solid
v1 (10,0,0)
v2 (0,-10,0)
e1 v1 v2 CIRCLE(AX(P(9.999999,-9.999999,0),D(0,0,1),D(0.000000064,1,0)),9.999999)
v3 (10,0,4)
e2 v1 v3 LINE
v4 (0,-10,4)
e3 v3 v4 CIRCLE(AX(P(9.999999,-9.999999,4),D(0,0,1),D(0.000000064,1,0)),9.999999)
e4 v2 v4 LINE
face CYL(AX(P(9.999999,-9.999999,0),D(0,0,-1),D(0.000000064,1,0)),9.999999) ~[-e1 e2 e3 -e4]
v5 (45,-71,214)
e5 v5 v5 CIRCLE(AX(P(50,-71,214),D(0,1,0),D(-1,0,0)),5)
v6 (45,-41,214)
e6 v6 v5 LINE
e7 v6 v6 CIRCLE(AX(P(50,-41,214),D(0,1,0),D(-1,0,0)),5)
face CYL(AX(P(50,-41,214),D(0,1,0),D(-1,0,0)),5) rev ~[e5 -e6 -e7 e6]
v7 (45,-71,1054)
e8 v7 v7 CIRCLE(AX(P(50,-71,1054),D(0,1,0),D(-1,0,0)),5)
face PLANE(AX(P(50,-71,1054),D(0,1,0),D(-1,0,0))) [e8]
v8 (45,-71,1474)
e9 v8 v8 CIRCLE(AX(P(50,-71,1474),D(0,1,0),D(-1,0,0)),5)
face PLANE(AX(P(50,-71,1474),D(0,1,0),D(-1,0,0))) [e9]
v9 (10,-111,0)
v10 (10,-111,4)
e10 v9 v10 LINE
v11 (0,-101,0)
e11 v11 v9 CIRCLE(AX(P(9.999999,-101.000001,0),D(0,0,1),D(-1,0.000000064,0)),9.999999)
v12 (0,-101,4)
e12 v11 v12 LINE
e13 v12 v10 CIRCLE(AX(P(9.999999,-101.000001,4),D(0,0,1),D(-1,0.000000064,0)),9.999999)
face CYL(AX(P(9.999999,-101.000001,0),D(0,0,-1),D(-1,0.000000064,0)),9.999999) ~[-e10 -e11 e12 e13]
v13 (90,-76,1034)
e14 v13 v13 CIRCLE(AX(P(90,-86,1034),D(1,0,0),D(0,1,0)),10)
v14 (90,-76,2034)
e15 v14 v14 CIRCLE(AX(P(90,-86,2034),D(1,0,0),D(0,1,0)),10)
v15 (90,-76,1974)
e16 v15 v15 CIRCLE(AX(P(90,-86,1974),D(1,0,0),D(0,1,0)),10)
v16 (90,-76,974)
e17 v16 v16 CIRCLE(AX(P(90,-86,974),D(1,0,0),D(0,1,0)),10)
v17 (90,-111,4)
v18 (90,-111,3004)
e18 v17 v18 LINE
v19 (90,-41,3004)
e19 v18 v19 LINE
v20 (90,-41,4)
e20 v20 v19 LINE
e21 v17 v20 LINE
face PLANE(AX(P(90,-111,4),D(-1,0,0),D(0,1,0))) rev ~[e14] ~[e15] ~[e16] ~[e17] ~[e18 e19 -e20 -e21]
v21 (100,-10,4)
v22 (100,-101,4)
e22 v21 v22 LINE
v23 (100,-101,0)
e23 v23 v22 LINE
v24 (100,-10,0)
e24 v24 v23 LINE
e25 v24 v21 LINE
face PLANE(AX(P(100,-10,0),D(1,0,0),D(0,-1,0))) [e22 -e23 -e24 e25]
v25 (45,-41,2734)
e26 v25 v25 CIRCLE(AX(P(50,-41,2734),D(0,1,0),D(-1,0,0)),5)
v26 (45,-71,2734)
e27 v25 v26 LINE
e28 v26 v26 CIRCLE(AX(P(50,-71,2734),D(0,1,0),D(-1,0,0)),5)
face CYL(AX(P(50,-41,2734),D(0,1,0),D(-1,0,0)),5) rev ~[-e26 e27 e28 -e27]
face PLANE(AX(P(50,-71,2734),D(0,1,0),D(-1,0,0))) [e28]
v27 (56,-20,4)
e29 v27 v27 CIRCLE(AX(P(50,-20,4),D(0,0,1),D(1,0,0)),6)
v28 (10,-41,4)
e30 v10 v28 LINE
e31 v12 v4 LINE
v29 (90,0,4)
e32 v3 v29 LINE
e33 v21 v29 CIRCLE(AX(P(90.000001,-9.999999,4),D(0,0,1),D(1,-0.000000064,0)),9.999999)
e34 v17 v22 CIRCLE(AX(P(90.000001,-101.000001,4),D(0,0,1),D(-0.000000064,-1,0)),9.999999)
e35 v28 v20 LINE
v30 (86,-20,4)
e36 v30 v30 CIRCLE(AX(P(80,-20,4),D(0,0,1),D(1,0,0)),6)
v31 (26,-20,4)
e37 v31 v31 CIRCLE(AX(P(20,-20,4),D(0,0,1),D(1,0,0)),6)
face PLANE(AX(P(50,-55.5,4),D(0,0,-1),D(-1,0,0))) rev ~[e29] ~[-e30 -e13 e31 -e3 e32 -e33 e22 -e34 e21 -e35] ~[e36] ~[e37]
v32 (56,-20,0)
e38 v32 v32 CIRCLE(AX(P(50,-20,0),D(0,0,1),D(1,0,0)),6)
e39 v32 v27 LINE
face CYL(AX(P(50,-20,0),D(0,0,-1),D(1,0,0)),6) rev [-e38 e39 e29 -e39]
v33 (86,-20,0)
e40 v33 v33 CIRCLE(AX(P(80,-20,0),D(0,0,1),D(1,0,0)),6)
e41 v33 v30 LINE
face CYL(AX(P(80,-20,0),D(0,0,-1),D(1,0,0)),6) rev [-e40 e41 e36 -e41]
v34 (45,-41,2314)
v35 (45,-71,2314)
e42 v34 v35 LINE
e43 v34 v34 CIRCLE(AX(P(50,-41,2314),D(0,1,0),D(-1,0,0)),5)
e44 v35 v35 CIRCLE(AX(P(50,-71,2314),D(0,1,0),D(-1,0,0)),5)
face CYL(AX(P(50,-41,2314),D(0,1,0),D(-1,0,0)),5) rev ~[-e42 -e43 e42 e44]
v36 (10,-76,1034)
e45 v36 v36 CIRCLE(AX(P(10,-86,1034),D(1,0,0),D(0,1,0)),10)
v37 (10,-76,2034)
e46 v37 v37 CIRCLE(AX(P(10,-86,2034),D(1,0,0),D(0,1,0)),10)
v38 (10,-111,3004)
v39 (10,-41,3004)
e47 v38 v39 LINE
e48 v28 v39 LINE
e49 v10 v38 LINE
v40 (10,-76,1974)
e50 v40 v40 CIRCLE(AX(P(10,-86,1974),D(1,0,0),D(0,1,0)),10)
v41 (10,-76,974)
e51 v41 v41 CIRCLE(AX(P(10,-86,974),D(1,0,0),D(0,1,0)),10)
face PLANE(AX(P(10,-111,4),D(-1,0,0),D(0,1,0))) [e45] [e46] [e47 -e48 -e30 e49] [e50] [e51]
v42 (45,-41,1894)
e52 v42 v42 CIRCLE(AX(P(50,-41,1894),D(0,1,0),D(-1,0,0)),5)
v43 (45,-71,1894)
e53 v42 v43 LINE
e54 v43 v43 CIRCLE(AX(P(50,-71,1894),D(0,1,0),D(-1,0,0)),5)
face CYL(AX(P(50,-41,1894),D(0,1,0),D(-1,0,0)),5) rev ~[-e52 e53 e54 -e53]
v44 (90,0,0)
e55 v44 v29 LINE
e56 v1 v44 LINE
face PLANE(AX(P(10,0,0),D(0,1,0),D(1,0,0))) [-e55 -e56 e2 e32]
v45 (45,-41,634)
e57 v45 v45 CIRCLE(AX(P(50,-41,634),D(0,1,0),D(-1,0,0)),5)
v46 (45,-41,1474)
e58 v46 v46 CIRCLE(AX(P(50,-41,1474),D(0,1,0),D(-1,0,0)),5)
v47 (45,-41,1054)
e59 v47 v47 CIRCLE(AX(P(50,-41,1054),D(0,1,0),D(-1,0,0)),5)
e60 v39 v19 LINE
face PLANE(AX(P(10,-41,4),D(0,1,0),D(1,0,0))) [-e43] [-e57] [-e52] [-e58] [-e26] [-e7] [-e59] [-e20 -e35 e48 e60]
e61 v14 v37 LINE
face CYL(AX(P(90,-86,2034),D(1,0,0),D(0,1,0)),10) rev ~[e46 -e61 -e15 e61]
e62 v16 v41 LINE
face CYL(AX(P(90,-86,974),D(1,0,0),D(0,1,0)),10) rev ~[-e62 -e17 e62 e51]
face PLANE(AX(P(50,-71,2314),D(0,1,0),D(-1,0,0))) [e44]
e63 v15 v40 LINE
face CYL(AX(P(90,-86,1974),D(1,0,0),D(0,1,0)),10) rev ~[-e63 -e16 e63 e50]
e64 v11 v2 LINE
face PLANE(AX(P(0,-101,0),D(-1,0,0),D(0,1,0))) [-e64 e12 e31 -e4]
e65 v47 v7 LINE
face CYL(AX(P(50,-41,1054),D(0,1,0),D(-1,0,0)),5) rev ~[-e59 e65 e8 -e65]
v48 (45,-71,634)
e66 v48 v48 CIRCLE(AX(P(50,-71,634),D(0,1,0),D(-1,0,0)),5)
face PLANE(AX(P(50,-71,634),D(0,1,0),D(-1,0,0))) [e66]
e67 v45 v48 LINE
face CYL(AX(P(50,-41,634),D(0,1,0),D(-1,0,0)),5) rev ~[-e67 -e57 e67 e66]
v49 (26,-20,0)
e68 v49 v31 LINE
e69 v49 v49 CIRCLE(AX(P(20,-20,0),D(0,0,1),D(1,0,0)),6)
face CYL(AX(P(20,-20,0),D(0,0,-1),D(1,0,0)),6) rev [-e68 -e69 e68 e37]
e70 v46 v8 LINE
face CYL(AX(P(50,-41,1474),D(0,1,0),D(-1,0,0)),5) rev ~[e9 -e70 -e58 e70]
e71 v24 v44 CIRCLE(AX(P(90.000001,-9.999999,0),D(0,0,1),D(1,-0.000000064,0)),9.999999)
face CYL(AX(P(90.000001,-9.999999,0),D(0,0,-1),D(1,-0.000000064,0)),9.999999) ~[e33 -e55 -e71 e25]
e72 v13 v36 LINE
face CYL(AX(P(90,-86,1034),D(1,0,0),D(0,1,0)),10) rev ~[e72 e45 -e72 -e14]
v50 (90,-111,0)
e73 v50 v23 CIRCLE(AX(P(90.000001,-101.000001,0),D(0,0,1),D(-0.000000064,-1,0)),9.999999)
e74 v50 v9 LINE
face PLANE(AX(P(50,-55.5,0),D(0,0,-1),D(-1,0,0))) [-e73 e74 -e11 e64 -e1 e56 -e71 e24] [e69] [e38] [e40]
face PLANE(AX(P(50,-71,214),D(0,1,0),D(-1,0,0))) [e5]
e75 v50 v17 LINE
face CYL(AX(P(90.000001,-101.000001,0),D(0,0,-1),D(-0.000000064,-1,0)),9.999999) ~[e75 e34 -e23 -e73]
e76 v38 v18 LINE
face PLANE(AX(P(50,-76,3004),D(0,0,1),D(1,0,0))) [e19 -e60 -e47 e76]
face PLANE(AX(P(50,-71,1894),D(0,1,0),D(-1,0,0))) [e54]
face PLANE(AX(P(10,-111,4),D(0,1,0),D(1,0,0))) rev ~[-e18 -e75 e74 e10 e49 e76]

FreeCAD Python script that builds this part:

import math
import FreeCAD as App
import Part
import Sketcher
from FreeCAD import Vector


def add_polygon(sketch, points):
    """Adds a closed chain of lines whose ends are joined by coincident constraints."""
    first, n = sketch.GeometryCount, len(points)
    for a, b in zip(points, points[1:] + points[:1]):
        sketch.addGeometry(Part.LineSegment(App.Vector(*a, 0), App.Vector(*b, 0)), False)
    for i in range(n):
        sketch.addConstraint(Sketcher.Constraint("Coincident", first + i, 2, first + (i + 1) % n, 1))

doc = App.newDocument("Part")
body = doc.addObject("PartDesign::Body", "Body")

sketch1 = body.newObject("Sketcher::SketchObject", "Sketch")
sketch1.AttachmentSupport = (doc.getObject("XY_Plane"), [""])
sketch1.MapMode = "FlatFace"
sketch1.addGeometry(Part.LineSegment(Vector(90, 0, 0), Vector(10, 0, 0)), False)
sketch1.addGeometry(Part.ArcOfCircle(Part.Circle(Vector(10, -10, 0), Vector(0, 0, 1), 10), math.radians(90), math.radians(180)), False)
sketch1.addGeometry(Part.LineSegment(Vector(0, -10, 0), Vector(0, -101, 0)), False)
sketch1.addGeometry(Part.ArcOfCircle(Part.Circle(Vector(10, -101, 0), Vector(0, 0, 1), 10), math.radians(180), math.radians(270)), False)
sketch1.addGeometry(Part.LineSegment(Vector(10, -111, 0), Vector(90, -111, 0)), False)
sketch1.addGeometry(Part.ArcOfCircle(Part.Circle(Vector(90, -101, 0), Vector(0, 0, 1), 10), math.radians(-90), math.radians(0)), False)
sketch1.addGeometry(Part.LineSegment(Vector(100, -101, 0), Vector(100, -10, 0)), False)
sketch1.addGeometry(Part.ArcOfCircle(Part.Circle(Vector(90, -10, 0), Vector(0, 0, 1), 10), math.radians(0), math.radians(90)), False)
sketch1.addGeometry(Part.Circle(Vector(80, -20, 0), Vector(0, 0, 1), 6), False)
sketch1.addGeometry(Part.Circle(Vector(50, -20, 0), Vector(0, 0, 1), 6), False)
sketch1.addGeometry(Part.Circle(Vector(20, -20, 0), Vector(0, 0, 1), 6), False)
sketch1.addConstraint(Sketcher.Constraint("Tangent", 0, 2, 1, 1))
sketch1.addConstraint(Sketcher.Constraint("Tangent", 1, 2, 2, 1))
sketch1.addConstraint(Sketcher.Constraint("Tangent", 2, 2, 3, 1))
sketch1.addConstraint(Sketcher.Constraint("Tangent", 3, 2, 4, 1))
sketch1.addConstraint(Sketcher.Constraint("Tangent", 4, 2, 5, 1))
sketch1.addConstraint(Sketcher.Constraint("Tangent", 5, 2, 6, 1))
sketch1.addConstraint(Sketcher.Constraint("Tangent", 6, 2, 7, 1))
sketch1.addConstraint(Sketcher.Constraint("Tangent", 7, 2, 0, 1))
sketch1.addConstraint(Sketcher.Constraint("Horizontal", 0))
sketch1.addConstraint(Sketcher.Constraint("Vertical", 2))
sketch1.addConstraint(Sketcher.Constraint("Horizontal", 4))
sketch1.addConstraint(Sketcher.Constraint("Vertical", 6))
sketch1.addConstraint(Sketcher.Constraint("Equal", 1, 3))
sketch1.addConstraint(Sketcher.Constraint("Equal", 3, 5))
sketch1.addConstraint(Sketcher.Constraint("Equal", 5, 7))
sketch1.addConstraint(Sketcher.Constraint("Equal", 8, 9))
sketch1.addConstraint(Sketcher.Constraint("Equal", 9, 10))
sketch1.addConstraint(Sketcher.Constraint("PointOnObject", 0, 2, -1))
sketch1.addConstraint(Sketcher.Constraint("PointOnObject", 1, 2, -2))
sketch1.addConstraint(Sketcher.Constraint("Horizontal", 8, 3, 9, 3))
sketch1.addConstraint(Sketcher.Constraint("Horizontal", 9, 3, 10, 3))
sketch1.addConstraint(Sketcher.Constraint("Diameter", 8, 12.0))
sketch1.addConstraint(Sketcher.Constraint("Radius", 1, 9.999999))
sketch1.addConstraint(Sketcher.Constraint("DistanceX", 0, 2, 0, 1, 80.0))
sketch1.addConstraint(Sketcher.Constraint("DistanceY", 2, 2, 2, 1, 91.0))
sketch1.addConstraint(Sketcher.Constraint("DistanceX", -1, 1, 8, 3, 80.0))
sketch1.addConstraint(Sketcher.Constraint("DistanceY", 8, 3, -1, 1, 20.0))
sketch1.addConstraint(Sketcher.Constraint("DistanceX", -1, 1, 9, 3, 50.0))
sketch1.addConstraint(Sketcher.Constraint("DistanceX", -1, 1, 10, 3, 20.0))
pad1 = body.newObject("PartDesign::Pad", "Pad")
pad1.Profile = sketch1
pad1.Length = 4

sketch2 = body.newObject("Sketcher::SketchObject", "Sketch001")
sketch2.AttachmentSupport = (doc.getObject("XY_Plane"), [""])
sketch2.MapMode = "FlatFace"
sketch2.AttachmentOffset = App.Placement(Vector(0, 0, 4), App.Rotation())
add_polygon(sketch2, [(10, -41), (10, -111), (90, -111), (90, -41)])
sketch2.addConstraint(Sketcher.Constraint("Vertical", 0))
sketch2.addConstraint(Sketcher.Constraint("Horizontal", 1))
sketch2.addConstraint(Sketcher.Constraint("Vertical", 2))
sketch2.addConstraint(Sketcher.Constraint("Horizontal", 3))
sketch2.addConstraint(Sketcher.Constraint("DistanceX", 1, 1, 1, 2, 80.0))
sketch2.addConstraint(Sketcher.Constraint("DistanceY", 0, 2, 0, 1, 70.0))
sketch2.addConstraint(Sketcher.Constraint("DistanceX", -1, 1, 0, 2, 10.0))
sketch2.addConstraint(Sketcher.Constraint("DistanceY", 0, 2, -1, 1, 111.0))
pad2 = body.newObject("PartDesign::Pad", "Pad001")
pad2.Profile = sketch2
pad2.Length = 3000

sketch3 = body.newObject("Sketcher::SketchObject", "Sketch002")
sketch3.AttachmentSupport = (doc.getObject("YZ_Plane"), [""])
sketch3.MapMode = "FlatFace"
sketch3.AttachmentOffset = App.Placement(Vector(0, 0, 90), App.Rotation())
sketch3.addGeometry(Part.Circle(Vector(-86, 1034, 0), Vector(0, 0, 1), 10), False)
sketch3.addGeometry(Part.Circle(Vector(-86, 974, 0), Vector(0, 0, 1), 10), False)
sketch3.addGeometry(Part.Circle(Vector(-86, 2034, 0), Vector(0, 0, 1), 10), False)
sketch3.addGeometry(Part.Circle(Vector(-86, 1974, 0), Vector(0, 0, 1), 10), False)
sketch3.addConstraint(Sketcher.Constraint("Equal", 0, 1))
sketch3.addConstraint(Sketcher.Constraint("Equal", 1, 2))
sketch3.addConstraint(Sketcher.Constraint("Equal", 2, 3))
sketch3.addConstraint(Sketcher.Constraint("Vertical", 0, 3, 1, 3))
sketch3.addConstraint(Sketcher.Constraint("Vertical", 1, 3, 2, 3))
sketch3.addConstraint(Sketcher.Constraint("Vertical", 2, 3, 3, 3))
sketch3.addConstraint(Sketcher.Constraint("Diameter", 0, 20.0))
sketch3.addConstraint(Sketcher.Constraint("DistanceX", 0, 3, -1, 1, 86.0))
sketch3.addConstraint(Sketcher.Constraint("DistanceY", -1, 1, 0, 3, 1034.0))
sketch3.addConstraint(Sketcher.Constraint("DistanceY", -1, 1, 1, 3, 974.0))
sketch3.addConstraint(Sketcher.Constraint("DistanceY", -1, 1, 2, 3, 2034.0))
sketch3.addConstraint(Sketcher.Constraint("DistanceY", -1, 1, 3, 3, 1974.0))
pocket1 = body.newObject("PartDesign::Pocket", "Pocket")
pocket1.Profile = sketch3
pocket1.Length = 80

sketch4 = body.newObject("Sketcher::SketchObject", "Sketch003")
sketch4.AttachmentSupport = (doc.getObject("XZ_Plane"), [""])
sketch4.MapMode = "FlatFace"
sketch4.AttachmentOffset = App.Placement(Vector(0, 0, 41), App.Rotation())
sketch4.addGeometry(Part.Circle(Vector(50, 214, 0), Vector(0, 0, 1), 5), False)
sketch4.addGeometry(Part.Circle(Vector(50, 634, 0), Vector(0, 0, 1), 5), False)
sketch4.addGeometry(Part.Circle(Vector(50, 1054, 0), Vector(0, 0, 1), 5), False)
sketch4.addGeometry(Part.Circle(Vector(50, 1474, 0), Vector(0, 0, 1), 5), False)
sketch4.addGeometry(Part.Circle(Vector(50, 1894, 0), Vector(0, 0, 1), 5), False)
sketch4.addGeometry(Part.Circle(Vector(50, 2314, 0), Vector(0, 0, 1), 5), False)
sketch4.addGeometry(Part.Circle(Vector(50, 2734, 0), Vector(0, 0, 1), 5), False)
sketch4.addConstraint(Sketcher.Constraint("Equal", 0, 1))
sketch4.addConstraint(Sketcher.Constraint("Equal", 1, 2))
sketch4.addConstraint(Sketcher.Constraint("Equal", 2, 3))
sketch4.addConstraint(Sketcher.Constraint("Equal", 3, 4))
sketch4.addConstraint(Sketcher.Constraint("Equal", 4, 5))
sketch4.addConstraint(Sketcher.Constraint("Equal", 5, 6))
sketch4.addConstraint(Sketcher.Constraint("Vertical", 0, 3, 1, 3))
sketch4.addConstraint(Sketcher.Constraint("Vertical", 1, 3, 2, 3))
sketch4.addConstraint(Sketcher.Constraint("Vertical", 2, 3, 3, 3))
sketch4.addConstraint(Sketcher.Constraint("Vertical", 3, 3, 4, 3))
sketch4.addConstraint(Sketcher.Constraint("Vertical", 4, 3, 5, 3))
sketch4.addConstraint(Sketcher.Constraint("Vertical", 5, 3, 6, 3))
sketch4.addConstraint(Sketcher.Constraint("Diameter", 0, 10.0))
sketch4.addConstraint(Sketcher.Constraint("DistanceX", -1, 1, 0, 3, 50.0))
sketch4.addConstraint(Sketcher.Constraint("DistanceY", -1, 1, 0, 3, 214.0))
sketch4.addConstraint(Sketcher.Constraint("DistanceY", -1, 1, 1, 3, 634.0))
sketch4.addConstraint(Sketcher.Constraint("DistanceY", -1, 1, 2, 3, 1054.0))
sketch4.addConstraint(Sketcher.Constraint("DistanceY", -1, 1, 3, 3, 1474.0))
sketch4.addConstraint(Sketcher.Constraint("DistanceY", -1, 1, 4, 3, 1894.0))
sketch4.addConstraint(Sketcher.Constraint("DistanceY", -1, 1, 5, 3, 2314.0))
sketch4.addConstraint(Sketcher.Constraint("DistanceY", -1, 1, 6, 3, 2734.0))
pocket2 = body.newObject("PartDesign::Pocket", "Pocket001")
pocket2.Profile = sketch4
pocket2.Length = 30
pocket2.Reversed = True

doc.recompute()
